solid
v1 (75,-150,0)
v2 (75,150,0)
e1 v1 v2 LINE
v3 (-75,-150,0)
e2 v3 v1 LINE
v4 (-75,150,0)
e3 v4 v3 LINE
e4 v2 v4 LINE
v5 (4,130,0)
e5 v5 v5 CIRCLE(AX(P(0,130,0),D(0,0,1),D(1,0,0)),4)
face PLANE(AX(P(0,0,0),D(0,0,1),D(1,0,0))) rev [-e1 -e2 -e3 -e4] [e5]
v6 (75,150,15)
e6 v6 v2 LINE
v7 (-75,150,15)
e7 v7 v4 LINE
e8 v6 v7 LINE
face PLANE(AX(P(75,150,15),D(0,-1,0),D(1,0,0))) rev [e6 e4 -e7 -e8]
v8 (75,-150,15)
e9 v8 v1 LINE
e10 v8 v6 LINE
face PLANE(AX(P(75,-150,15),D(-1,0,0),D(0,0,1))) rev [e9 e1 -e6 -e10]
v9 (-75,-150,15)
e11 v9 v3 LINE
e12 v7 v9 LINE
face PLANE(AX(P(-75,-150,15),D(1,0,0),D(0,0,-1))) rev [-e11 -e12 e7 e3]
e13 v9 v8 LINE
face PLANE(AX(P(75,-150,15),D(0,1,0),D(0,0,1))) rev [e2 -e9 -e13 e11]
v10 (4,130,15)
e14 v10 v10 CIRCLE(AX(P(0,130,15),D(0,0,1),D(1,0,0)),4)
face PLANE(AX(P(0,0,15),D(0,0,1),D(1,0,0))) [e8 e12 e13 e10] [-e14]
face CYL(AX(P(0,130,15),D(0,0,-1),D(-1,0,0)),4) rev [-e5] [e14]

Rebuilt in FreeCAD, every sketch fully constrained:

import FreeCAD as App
import Part
import Sketcher

V = App.Vector
Q = App.Units.Quantity


def add_polygon(sketch, points):
    """Adds a closed chain of lines whose ends are joined by coincident constraints."""
    first, n = sketch.GeometryCount, len(points)
    for a, b in zip(points, points[1:] + points[:1]):
        sketch.addGeometry(Part.LineSegment(App.Vector(*a, 0), App.Vector(*b, 0)), False)
    for i in range(n):
        sketch.addConstraint(Sketcher.Constraint("Coincident", first + i, 2, first + (i + 1) % n, 1))

doc = App.newDocument("Part")
params = doc.addObject("Spreadsheet::Sheet", "Params")
for row, (alias, value) in enumerate([
    ("sketch1_diameter", "8 mm"),
    ("sketch1_width", "150 mm"),
    ("sketch1_height", "300 mm"),
    ("pad1_length", "15 mm"),
], start=1):
    params.set(f"A{row}", alias)
    params.set(f"B{row}", "=" + value)
    params.setAlias(f"B{row}", alias)

body = doc.addObject("PartDesign::Body", "Body")

sketch1 = body.newObject("Sketcher::SketchObject", "Sketch")
sketch1.AttachmentSupport = (doc.getObject("XY_Plane"), [""])
sketch1.MapMode = "FlatFace"
add_polygon(sketch1, [(-75, 150), (-75, -150), (75, -150), (75, 150)])
sketch1.addGeometry(Part.Circle(V(0, 130, 0), V(0, 0, 1), 4), False)
sketch1.addConstraint([
    Sketcher.Constraint("Vertical", 0),
    Sketcher.Constraint("Horizontal", 1),
    Sketcher.Constraint("Vertical", 2),
    Sketcher.Constraint("Horizontal", 3),
    Sketcher.Constraint("Symmetric", 0, 2, 2, 2, -1, 1),
    Sketcher.Constraint("PointOnObject", 4, 3, -2),
    Sketcher.Constraint("Diameter", 4, Q("8 mm")),
    Sketcher.Constraint("DistanceX", 1, 1, 1, 2, Q("150 mm")),
    Sketcher.Constraint("DistanceY", 0, 2, 0, 1, Q("300 mm")),
    Sketcher.Constraint("DistanceY", -1, 1, 4, 3, Q("130 mm")),
])
sketch1.setExpression("Constraints[10]", "Params.sketch1_diameter")
sketch1.setExpression("Constraints[11]", "Params.sketch1_width")
sketch1.setExpression("Constraints[12]", "Params.sketch1_height")
pad1 = body.newObject("PartDesign::Pad", "Pad")
pad1.Profile = sketch1
pad1.setExpression("Length", "Params.pad1_length")

doc.recompute()
